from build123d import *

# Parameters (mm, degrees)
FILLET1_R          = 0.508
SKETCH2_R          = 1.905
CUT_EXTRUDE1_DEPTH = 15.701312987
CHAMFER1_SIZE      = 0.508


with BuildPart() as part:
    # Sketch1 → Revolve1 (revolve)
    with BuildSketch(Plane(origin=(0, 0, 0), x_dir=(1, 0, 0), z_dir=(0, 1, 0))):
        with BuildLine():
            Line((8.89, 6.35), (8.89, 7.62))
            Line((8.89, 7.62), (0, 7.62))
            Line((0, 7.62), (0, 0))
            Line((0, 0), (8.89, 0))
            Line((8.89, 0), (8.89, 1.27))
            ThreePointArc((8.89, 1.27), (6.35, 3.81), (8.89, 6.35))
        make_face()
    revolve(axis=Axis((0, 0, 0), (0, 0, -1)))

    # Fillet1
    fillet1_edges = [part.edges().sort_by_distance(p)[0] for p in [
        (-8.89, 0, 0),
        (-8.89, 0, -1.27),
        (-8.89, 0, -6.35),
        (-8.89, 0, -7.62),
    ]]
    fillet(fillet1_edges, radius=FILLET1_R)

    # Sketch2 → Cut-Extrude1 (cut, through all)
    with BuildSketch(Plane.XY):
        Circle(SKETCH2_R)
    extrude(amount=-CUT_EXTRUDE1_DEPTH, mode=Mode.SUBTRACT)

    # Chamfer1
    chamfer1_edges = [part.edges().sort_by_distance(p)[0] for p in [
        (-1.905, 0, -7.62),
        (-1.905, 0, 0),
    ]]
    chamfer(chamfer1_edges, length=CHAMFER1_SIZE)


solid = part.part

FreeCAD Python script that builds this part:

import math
import FreeCAD as App
import Part
import Sketcher
from FreeCAD import Vector
Q = App.Units.Quantity


def edges_at(feature, points):
    """Names of the edges that pass closest to the given points."""
    edges = feature.Shape.Edges
    near = lambda p: min(range(len(edges)), key=lambda i: edges[i].distToShape(Part.Vertex(*p))[0])
    return sorted({f"Edge{near(p) + 1}" for p in points})

doc = App.newDocument("Part")
body = doc.addObject("PartDesign::Body", "Body")

# Sketch on XZ plane
sketch1 = body.newObject("Sketcher::SketchObject", "Sketch")
sketch1.AttachmentSupport = (doc.getObject("XZ_Plane"), [""])
sketch1.MapMode = "FlatFace"
sketch1.addGeometry([
    Part.LineSegment(Vector(8.9, -6.3, 0), Vector(8.9, -7.6, 0)),  # 0
    Part.LineSegment(Vector(8.9, -7.6, 0), Vector(0, -7.6, 0)),  # 1
    Part.LineSegment(Vector(0, -7.6, 0), Vector(0, 0, 0)),  # 2
    Part.LineSegment(Vector(0, 0, 0), Vector(8.9, 0, 0)),  # 3
    Part.LineSegment(Vector(8.9, 0, 0), Vector(8.9, -1.3, 0)),  # 4
    Part.ArcOfCircle(Part.Circle(Vector(8.9, -3.8, 0), Vector(0, 0, 1), 2.5), math.radians(90), math.radians(270)),  # 5
], False)
sketch1.addConstraint([
    Sketcher.Constraint("Coincident", 0, 2, 1, 1),
    Sketcher.Constraint("Coincident", 1, 2, 2, 1),
    Sketcher.Constraint("Coincident", 2, 2, 3, 1),
    Sketcher.Constraint("Coincident", 3, 2, 4, 1),
    Sketcher.Constraint("Coincident", 4, 2, 5, 1),
    Sketcher.Constraint("Coincident", 5, 2, 0, 1),
    Sketcher.Constraint("Vertical", 0),
    Sketcher.Constraint("Horizontal", 1),
    Sketcher.Constraint("Vertical", 2),
    Sketcher.Constraint("Horizontal", 3),
    Sketcher.Constraint("Vertical", 4),
    Sketcher.Constraint("Coincident", 2, 2, -1, 1),
    Sketcher.Constraint("Vertical", 5, 3, 0, 2),
    Sketcher.Constraint("Vertical", 0, 2, 3, 2),
    Sketcher.Constraint("Equal", 0, 4),
    Sketcher.Constraint("Radius", 5, Q("0.1 in")),
    Sketcher.Constraint("DistanceY", 2, 1, 2, 2, Q("0.3 in")),
    Sketcher.Constraint("DistanceX", 1, 2, 1, 1, Q("0.35 in")),
])
revolution = body.newObject("PartDesign::Revolution", "Revolution")
revolution.Profile = sketch1
revolution.ReferenceAxis = (sketch1, ["V_Axis"])
revolution.Angle = 360
doc.recompute()

fillet = body.newObject("PartDesign::Fillet", "Fillet")
fillet.Base = (revolution, edges_at(revolution, [
    (-8.89, 0, 0),
    (-8.89, 0, -1.27),
    (-8.89, 0, -6.35),
    (-8.89, 0, -7.62),
]))
fillet.Radius = Q("0.02 in")

# Sketch on XY plane
sketch2 = body.newObject("Sketcher::SketchObject", "Sketch001")
sketch2.AttachmentSupport = (doc.getObject("XY_Plane"), [""])
sketch2.MapMode = "FlatFace"
sketch2.addGeometry(Part.Circle(Vector(0, 0, 0), Vector(0, 0, 1), 1.9), False)
sketch2.addConstraint([
    Sketcher.Constraint("Coincident", 0, 3, -1, 1),
    Sketcher.Constraint("Diameter", 0, Q("0.15 in")),
])
pocket1 = body.newObject("PartDesign::Pocket", "Pocket")
pocket1.Profile = sketch2
pocket1.Type = "ThroughAll"
doc.recompute()

chamfer = body.newObject("PartDesign::Chamfer", "Chamfer")
chamfer.Base = (pocket1, edges_at(pocket1, [(-1.905, 0, -7.62), (-1.905, 0, 0)]))
chamfer.Size = Q("0.02 in")

doc.recompute()
